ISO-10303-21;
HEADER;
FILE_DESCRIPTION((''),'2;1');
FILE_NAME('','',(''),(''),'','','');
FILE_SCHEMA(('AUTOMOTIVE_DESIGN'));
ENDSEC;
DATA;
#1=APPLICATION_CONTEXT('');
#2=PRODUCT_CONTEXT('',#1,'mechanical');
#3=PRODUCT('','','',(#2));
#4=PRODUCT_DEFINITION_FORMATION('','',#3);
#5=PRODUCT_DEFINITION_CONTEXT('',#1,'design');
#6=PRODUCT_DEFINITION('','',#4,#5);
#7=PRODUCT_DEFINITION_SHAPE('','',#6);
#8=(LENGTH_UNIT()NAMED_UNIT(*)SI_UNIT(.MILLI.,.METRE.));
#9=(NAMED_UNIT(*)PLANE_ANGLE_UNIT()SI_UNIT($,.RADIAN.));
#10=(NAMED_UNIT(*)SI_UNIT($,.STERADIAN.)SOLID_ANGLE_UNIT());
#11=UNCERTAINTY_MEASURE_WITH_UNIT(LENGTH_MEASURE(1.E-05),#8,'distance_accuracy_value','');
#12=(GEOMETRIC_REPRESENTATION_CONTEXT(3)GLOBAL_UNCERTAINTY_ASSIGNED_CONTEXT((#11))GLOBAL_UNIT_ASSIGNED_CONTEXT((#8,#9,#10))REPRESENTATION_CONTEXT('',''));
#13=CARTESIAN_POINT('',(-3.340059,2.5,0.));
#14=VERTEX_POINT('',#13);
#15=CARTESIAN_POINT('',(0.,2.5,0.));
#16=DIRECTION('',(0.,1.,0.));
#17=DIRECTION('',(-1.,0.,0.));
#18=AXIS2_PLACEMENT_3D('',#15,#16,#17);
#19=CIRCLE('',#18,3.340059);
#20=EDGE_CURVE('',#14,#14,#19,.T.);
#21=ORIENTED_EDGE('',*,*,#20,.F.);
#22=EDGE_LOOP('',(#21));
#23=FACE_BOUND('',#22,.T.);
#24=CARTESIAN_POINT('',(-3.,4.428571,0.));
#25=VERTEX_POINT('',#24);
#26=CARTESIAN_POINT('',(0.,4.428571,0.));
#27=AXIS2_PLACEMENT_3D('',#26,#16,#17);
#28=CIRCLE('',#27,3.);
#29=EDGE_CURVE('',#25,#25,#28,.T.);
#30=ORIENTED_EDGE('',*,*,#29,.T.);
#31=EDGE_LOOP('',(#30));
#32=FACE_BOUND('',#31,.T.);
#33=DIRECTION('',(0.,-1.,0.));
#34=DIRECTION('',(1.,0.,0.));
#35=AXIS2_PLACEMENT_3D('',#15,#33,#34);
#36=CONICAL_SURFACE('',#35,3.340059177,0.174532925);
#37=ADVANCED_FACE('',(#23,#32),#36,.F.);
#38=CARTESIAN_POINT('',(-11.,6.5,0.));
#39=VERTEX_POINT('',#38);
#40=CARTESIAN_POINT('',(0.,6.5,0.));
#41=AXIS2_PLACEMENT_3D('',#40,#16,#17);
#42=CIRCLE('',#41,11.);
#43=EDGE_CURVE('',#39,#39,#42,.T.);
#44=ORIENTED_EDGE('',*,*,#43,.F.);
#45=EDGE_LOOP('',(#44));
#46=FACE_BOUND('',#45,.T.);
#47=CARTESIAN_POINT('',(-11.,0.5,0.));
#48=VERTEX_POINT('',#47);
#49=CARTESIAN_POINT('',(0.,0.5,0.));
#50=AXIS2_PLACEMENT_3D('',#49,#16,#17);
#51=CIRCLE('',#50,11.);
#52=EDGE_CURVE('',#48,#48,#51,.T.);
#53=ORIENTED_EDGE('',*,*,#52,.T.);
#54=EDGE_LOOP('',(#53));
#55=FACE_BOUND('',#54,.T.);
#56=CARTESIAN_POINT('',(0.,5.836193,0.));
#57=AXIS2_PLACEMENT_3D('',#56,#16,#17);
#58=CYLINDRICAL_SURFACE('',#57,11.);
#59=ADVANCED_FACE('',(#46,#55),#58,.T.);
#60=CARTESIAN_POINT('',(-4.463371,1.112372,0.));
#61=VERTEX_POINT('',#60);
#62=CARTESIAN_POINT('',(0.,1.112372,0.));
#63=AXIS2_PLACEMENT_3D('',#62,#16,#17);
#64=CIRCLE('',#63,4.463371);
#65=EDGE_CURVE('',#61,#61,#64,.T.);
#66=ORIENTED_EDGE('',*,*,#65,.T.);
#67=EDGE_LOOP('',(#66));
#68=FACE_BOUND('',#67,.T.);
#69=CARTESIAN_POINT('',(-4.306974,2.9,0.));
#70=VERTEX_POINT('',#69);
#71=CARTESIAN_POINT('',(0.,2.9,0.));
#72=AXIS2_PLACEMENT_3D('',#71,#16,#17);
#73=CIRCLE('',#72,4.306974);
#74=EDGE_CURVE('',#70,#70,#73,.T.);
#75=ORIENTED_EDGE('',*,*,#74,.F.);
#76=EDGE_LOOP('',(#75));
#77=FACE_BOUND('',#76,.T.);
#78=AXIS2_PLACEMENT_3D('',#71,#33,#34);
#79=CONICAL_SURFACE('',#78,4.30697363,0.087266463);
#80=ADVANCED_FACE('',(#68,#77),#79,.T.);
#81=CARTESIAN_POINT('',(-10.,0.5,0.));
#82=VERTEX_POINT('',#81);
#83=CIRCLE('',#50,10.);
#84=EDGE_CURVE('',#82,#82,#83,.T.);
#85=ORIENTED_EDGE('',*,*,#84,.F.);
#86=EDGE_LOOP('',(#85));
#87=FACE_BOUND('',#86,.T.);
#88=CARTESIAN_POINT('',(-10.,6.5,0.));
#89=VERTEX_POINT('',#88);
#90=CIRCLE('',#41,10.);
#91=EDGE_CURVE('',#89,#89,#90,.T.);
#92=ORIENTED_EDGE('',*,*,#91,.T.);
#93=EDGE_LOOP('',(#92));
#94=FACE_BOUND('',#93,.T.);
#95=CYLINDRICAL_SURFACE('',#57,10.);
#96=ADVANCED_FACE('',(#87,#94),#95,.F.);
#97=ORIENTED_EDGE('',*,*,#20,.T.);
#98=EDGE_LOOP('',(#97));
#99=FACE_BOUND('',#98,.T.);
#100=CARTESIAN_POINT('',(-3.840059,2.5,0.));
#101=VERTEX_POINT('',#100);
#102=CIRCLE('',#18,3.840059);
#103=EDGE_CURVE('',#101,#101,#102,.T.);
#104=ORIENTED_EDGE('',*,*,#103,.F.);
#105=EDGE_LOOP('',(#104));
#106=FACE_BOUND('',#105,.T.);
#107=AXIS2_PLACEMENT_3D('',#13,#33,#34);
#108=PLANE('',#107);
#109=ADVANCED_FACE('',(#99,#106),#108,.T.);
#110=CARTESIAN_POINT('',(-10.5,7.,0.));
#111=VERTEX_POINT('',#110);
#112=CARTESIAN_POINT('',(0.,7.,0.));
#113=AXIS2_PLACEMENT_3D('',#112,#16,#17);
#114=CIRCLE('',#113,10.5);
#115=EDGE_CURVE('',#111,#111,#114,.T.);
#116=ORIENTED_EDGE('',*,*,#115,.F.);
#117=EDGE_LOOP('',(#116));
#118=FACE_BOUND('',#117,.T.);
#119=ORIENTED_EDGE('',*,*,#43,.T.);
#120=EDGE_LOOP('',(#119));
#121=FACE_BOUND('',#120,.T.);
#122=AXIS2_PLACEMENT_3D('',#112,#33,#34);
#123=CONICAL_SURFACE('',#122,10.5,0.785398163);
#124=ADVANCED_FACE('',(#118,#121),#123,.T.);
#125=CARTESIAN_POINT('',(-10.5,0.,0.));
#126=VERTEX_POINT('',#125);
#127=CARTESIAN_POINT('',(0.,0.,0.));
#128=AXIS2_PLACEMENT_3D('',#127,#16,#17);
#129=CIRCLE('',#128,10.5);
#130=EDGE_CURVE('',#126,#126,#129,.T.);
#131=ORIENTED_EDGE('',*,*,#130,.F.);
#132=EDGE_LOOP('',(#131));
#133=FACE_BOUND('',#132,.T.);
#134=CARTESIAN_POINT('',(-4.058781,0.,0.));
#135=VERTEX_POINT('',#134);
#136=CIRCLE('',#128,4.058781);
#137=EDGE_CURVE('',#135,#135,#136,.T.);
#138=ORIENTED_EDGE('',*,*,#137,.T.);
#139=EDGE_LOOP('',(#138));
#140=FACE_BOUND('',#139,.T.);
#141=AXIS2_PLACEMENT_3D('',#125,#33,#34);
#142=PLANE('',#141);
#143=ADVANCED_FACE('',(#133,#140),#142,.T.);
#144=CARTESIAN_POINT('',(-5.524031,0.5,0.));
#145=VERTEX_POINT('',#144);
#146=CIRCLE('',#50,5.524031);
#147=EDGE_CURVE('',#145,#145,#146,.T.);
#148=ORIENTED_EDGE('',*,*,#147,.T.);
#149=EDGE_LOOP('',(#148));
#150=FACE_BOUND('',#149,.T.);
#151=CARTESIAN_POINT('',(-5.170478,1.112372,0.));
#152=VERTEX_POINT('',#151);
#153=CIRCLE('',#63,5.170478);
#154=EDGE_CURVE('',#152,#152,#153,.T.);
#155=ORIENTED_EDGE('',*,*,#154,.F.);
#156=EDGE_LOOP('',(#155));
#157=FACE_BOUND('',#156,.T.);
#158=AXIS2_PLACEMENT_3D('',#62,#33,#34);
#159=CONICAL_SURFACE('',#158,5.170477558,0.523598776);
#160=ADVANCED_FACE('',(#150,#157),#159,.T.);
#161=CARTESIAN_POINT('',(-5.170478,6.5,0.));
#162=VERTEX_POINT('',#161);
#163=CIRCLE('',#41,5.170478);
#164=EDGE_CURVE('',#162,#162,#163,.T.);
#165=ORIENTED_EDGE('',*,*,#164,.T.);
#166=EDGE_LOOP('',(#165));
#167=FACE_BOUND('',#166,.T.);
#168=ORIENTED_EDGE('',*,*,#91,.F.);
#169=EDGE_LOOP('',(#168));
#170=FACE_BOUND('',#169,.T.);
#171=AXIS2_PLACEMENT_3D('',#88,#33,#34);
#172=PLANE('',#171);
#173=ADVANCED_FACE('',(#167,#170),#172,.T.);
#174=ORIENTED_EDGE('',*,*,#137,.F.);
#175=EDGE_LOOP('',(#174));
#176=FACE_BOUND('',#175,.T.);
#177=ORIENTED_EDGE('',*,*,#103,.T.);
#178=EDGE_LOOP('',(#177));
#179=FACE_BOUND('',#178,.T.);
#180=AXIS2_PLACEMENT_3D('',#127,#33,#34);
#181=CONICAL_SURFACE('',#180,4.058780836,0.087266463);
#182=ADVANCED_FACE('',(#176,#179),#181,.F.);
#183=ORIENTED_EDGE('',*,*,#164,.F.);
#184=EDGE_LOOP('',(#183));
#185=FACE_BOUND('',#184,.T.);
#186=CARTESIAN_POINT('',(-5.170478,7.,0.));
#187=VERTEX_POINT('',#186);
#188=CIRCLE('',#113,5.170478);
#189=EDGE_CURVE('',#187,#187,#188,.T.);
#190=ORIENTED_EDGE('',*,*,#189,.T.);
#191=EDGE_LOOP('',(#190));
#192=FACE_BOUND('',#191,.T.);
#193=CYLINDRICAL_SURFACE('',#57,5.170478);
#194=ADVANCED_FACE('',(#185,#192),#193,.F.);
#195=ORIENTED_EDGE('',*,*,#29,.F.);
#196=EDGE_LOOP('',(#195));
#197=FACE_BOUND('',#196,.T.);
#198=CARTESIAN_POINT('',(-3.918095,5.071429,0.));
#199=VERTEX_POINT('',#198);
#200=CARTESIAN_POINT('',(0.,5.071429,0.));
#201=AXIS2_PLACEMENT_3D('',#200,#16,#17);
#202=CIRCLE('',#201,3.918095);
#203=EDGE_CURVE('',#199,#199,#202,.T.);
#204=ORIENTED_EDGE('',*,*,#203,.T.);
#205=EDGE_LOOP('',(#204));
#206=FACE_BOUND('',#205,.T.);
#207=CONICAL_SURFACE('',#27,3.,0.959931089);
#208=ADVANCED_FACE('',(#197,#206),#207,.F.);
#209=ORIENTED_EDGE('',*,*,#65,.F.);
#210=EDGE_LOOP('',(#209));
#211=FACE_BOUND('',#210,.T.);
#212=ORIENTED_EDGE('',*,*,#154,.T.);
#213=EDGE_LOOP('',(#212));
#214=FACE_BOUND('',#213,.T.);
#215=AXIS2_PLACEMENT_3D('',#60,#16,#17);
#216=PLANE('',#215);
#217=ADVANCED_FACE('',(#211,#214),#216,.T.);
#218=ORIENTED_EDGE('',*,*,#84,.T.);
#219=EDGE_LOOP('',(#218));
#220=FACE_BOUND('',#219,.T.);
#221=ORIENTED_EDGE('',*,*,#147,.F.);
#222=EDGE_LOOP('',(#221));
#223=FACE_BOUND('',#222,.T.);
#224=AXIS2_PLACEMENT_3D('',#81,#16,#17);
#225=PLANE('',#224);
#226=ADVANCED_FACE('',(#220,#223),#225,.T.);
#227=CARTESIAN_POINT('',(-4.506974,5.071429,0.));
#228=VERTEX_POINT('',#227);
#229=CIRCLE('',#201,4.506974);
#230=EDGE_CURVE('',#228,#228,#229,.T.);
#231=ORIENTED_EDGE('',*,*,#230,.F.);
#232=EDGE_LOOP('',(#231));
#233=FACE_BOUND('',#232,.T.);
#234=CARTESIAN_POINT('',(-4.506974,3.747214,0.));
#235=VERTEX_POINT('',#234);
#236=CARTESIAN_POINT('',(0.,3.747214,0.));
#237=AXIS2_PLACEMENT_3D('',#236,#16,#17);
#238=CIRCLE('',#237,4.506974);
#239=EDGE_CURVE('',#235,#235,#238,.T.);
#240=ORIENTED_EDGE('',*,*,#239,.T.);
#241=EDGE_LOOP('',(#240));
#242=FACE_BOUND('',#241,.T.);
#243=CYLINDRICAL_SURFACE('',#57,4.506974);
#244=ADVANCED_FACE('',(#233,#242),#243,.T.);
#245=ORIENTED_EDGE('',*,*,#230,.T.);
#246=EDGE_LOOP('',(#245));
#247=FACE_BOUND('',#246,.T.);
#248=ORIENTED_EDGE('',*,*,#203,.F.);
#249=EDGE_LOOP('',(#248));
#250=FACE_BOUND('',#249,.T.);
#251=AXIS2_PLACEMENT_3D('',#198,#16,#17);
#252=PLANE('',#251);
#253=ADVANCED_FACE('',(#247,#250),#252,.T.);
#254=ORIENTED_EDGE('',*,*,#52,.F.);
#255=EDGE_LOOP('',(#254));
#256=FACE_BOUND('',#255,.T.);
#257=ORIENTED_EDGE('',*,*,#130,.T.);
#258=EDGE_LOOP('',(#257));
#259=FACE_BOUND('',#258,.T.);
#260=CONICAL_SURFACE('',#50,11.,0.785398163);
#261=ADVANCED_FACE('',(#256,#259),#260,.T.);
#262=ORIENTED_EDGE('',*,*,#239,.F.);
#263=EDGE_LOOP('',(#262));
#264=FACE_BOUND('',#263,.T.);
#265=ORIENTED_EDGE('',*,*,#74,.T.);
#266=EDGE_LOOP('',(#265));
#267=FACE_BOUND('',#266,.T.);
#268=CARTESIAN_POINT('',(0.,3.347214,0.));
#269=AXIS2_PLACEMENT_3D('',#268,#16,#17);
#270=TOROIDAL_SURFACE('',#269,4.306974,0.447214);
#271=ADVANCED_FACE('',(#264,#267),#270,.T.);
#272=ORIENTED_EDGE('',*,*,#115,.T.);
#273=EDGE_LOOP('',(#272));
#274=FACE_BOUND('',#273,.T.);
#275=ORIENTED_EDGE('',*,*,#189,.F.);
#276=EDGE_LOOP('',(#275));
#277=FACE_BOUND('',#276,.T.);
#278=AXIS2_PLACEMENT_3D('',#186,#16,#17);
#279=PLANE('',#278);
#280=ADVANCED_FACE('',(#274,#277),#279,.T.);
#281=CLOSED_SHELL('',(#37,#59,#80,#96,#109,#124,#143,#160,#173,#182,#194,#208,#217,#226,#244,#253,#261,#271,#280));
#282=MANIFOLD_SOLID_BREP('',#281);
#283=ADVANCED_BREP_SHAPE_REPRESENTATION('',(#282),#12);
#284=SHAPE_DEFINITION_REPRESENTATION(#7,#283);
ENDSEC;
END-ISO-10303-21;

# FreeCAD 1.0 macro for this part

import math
import FreeCAD as App
import Part
import Sketcher
from FreeCAD import Vector
Q = App.Units.Quantity

doc = App.newDocument("Part")
body = doc.addObject("PartDesign::Body", "Body")

sketch1 = doc.addObject("Sketcher::SketchObject", "Sketch")
body.addObject(sketch1)
sketch1.AttachmentSupport = (doc.XY_Plane, [""])
sketch1.MapMode = "FlatFace"
sketch1.addGeometry([
    Part.LineSegment(Vector(-5.52, 0.5, 0), Vector(-10, 0.5, 0)),
    Part.LineSegment(Vector(-10, 0.5, 0), Vector(-10, 6.5, 0)),
    Part.LineSegment(Vector(-10, 6.5, 0), Vector(-5.17, 6.5, 0)),
    Part.LineSegment(Vector(-5.17, 6.5, 0), Vector(-5.17, 7, 0)),
    Part.LineSegment(Vector(-5.17, 7, 0), Vector(-10.5, 7, 0)),
    Part.LineSegment(Vector(-10.5, 7, 0), Vector(-11, 6.5, 0)),
    Part.LineSegment(Vector(-11, 6.5, 0), Vector(-11, 0.5, 0)),
    Part.LineSegment(Vector(-11, 0.5, 0), Vector(-10.5, 0, 0)),
    Part.LineSegment(Vector(-10.5, 0, 0), Vector(-4.06, 0, 0)),
    Part.LineSegment(Vector(-4.06, 0, 0), Vector(-3.84, 2.5, 0)),
    Part.LineSegment(Vector(-3.84, 2.5, 0), Vector(-3.34, 2.5, 0)),
    Part.LineSegment(Vector(-3.34, 2.5, 0), Vector(-3, 4.43, 0)),
    Part.LineSegment(Vector(-3, 4.43, 0), Vector(-3.92, 5.07, 0)),
    Part.LineSegment(Vector(-3.92, 5.07, 0), Vector(-4.51, 5.07, 0)),
    Part.LineSegment(Vector(-4.51, 5.07, 0), Vector(-4.51, 3.75, 0)),
    Part.ArcOfCircle(Part.Circle(Vector(-4.31, 3.35, 0), Vector(0, 0, 1), 0.45), math.radians(117), math.radians(270)),
    Part.LineSegment(Vector(-4.31, 2.9, 0), Vector(-4.46, 1.11, 0)),
    Part.LineSegment(Vector(-4.46, 1.11, 0), Vector(-5.17, 1.11, 0)),
    Part.LineSegment(Vector(-5.17, 1.11, 0), Vector(-5.52, 0.5, 0)),
], False)
sketch1.addConstraint([
    Sketcher.Constraint("Coincident", 0, 2, 1, 1),
    Sketcher.Constraint("Coincident", 1, 2, 2, 1),
    Sketcher.Constraint("Coincident", 2, 2, 3, 1),
    Sketcher.Constraint("Coincident", 3, 2, 4, 1),
    Sketcher.Constraint("Coincident", 4, 2, 5, 1),
    Sketcher.Constraint("Coincident", 5, 2, 6, 1),
    Sketcher.Constraint("Coincident", 6, 2, 7, 1),
    Sketcher.Constraint("Coincident", 7, 2, 8, 1),
    Sketcher.Constraint("Coincident", 8, 2, 9, 1),
    Sketcher.Constraint("Coincident", 9, 2, 10, 1),
    Sketcher.Constraint("Coincident", 10, 2, 11, 1),
    Sketcher.Constraint("Coincident", 11, 2, 12, 1),
    Sketcher.Constraint("Coincident", 12, 2, 13, 1),
    Sketcher.Constraint("Coincident", 13, 2, 14, 1),
    Sketcher.Constraint("Coincident", 14, 2, 15, 1),
    Sketcher.Constraint("Coincident", 15, 2, 16, 1),
    Sketcher.Constraint("Coincident", 16, 2, 17, 1),
    Sketcher.Constraint("Coincident", 17, 2, 18, 1),
    Sketcher.Constraint("Coincident", 18, 2, 0, 1),
    Sketcher.Constraint("Horizontal", 0),
    Sketcher.Constraint("Vertical", 1),
    Sketcher.Constraint("Horizontal", 2),
    Sketcher.Constraint("Vertical", 3),
    Sketcher.Constraint("Horizontal", 4),
    Sketcher.Constraint("Vertical", 6),
    Sketcher.Constraint("Horizontal", 8),
    Sketcher.Constraint("Horizontal", 10),
    Sketcher.Constraint("Horizontal", 13),
    Sketcher.Constraint("Vertical", 14),
    Sketcher.Constraint("Horizontal", 17),
    Sketcher.Constraint("PointOnObject", 7, 2, -1),
    Sketcher.Constraint("Perpendicular", 5, 7),
    Sketcher.Constraint("Parallel", 9, 16),
    Sketcher.Constraint("Horizontal", 2, 2, 5, 2),
    Sketcher.Constraint("Horizontal", 0, 2, 6, 2),
    Sketcher.Constraint("Vertical", 4, 2, 7, 2),
    Sketcher.Constraint("Vertical", 3, 2, 17, 2),
    Sketcher.Constraint("Equal", 10, 3),
    Sketcher.Constraint("Equal", 5, 7),
    Sketcher.Constraint("Equal", 7, 18),
    Sketcher.Constraint("DistanceY", 1, 1, 1, 2, Q("6 mm")),
    Sketcher.Constraint("Angle", 9, Q("85 deg")),
    Sketcher.Constraint("Angle", 11, Q("80 deg")),
    Sketcher.Constraint("Angle", 12, Q("145 deg")),
    Sketcher.Constraint("Angle", 18, Q("-120 deg")),
    Sketcher.Constraint("DistanceX", 10, 1, 10, 2, Q("0.5 mm")),
    Sketcher.Constraint("DistanceX", 0, 2, -1, 1, Q("10 mm")),
    Sketcher.Constraint("DistanceX", 5, 2, -1, 1, Q("11 mm")),
    Sketcher.Constraint("DistanceX", 11, 2, -1, 1, Q("3 mm")),
    Sketcher.Constraint("DistanceY", 9, 2, 2, 2, Q("4 mm")),
    Sketcher.Constraint("DistanceY", -1, 1, 15, 2, Q("2.9 mm")),
    Sketcher.Constraint("DistanceX", 13, 2, 15, 3, Q("0.2 mm")),
    Sketcher.Constraint("DistanceY", 15, 3, 14, 2, Q("0.4 mm")),
    Sketcher.Constraint("DistanceX", 14, 2, 15, 2, Q("0.2 mm")),
    Sketcher.Constraint("DistanceX", 0, 2, 0, 1, Q("4.475969 mm")),
    Sketcher.Constraint("DistanceX", 8, 1, 8, 2, Q("6.441219 mm")),
    Sketcher.Constraint("DistanceX", 13, 2, 13, 1, Q("0.588878 mm")),
    Sketcher.Constraint("DistanceX", 17, 2, 17, 1, Q("0.707107 mm")),
])
revolution = doc.addObject("PartDesign::Revolution", "Revolution")
body.addObject(revolution)
revolution.Profile = sketch1
revolution.ReferenceAxis = (sketch1, ["V_Axis"])
revolution.Angle = 360

doc.recompute()
